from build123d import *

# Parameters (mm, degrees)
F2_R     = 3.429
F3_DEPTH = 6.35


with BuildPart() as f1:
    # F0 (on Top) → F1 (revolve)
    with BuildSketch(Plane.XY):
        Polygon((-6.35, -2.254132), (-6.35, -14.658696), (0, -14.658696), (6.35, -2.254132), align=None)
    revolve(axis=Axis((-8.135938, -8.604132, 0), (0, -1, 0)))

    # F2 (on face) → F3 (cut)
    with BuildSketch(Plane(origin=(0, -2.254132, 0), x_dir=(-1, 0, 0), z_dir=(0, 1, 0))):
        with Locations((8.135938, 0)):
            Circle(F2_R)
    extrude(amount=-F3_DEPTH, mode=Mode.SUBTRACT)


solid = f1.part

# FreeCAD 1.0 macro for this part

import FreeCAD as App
import Part
import Sketcher
from FreeCAD import Vector
Q = App.Units.Quantity


def add_polygon(sketch, points):
    """Adds a closed chain of lines whose ends are joined by coincident constraints."""
    first, n = sketch.GeometryCount, len(points)
    for a, b in zip(points, points[1:] + points[:1]):
        sketch.addGeometry(Part.LineSegment(App.Vector(*a, 0), App.Vector(*b, 0)), False)
    for i in range(n):
        sketch.addConstraint(Sketcher.Constraint("Coincident", first + i, 2, first + (i + 1) % n, 1))

doc = App.newDocument("Part")
params = doc.addObject("Spreadsheet::Sheet", "Params")
for row, (alias, value) in enumerate([
    ("sketch1_width", "0.5 in"),
    ("sketch1_width2", "0.25 in"),
    ("revolution_angle", "360 deg"),
    ("sketch2_diameter", "0.27 in"),
    ("pocket1_length", "0.25 in"),
], start=1):
    params.set(f"A{row}", alias)
    params.set(f"B{row}", "=" + value)
    params.setAlias(f"B{row}", alias)

body = doc.addObject("PartDesign::Body", "Body")

# Sketch on XY plane
sketch1 = body.newObject("Sketcher::SketchObject", "Sketch")
sketch1.AttachmentSupport = (doc.getObject("XY_Plane"), [""])
sketch1.MapMode = "FlatFace"
add_polygon(sketch1, [(-6.35, -2.254132), (-6.35, -14.658696), (0, -14.658696), (6.35, -2.254132)])  # lines 0-3
sketch1.addGeometry(Part.LineSegment(Vector(-8.135938, -2.254132, 0), Vector(-8.135938, -14.658696, 0)), True)  # axis
sketch1.addConstraint([
    Sketcher.Constraint("Vertical", 0),
    Sketcher.Constraint("Horizontal", 1),
    Sketcher.Constraint("Horizontal", 3),
    Sketcher.Constraint("Vertical", 4),
    Sketcher.Constraint("PointOnObject", 1, 2, -2),
    Sketcher.Constraint("Horizontal", 3, 2, 4, 1),
    Sketcher.Constraint("Horizontal", 1, 2, 4, 2),
    Sketcher.Constraint("DistanceX", 3, 2, 3, 1, Q("0.5 in")),
    Sketcher.Constraint("DistanceX", 1, 1, 1, 2, Q("0.25 in")),
    Sketcher.Constraint("DistanceY", 0, 2, 0, 1, 12.404564),
    Sketcher.Constraint("DistanceY", 2, 2, -1, 1, 2.254132),
    Sketcher.Constraint("DistanceX", 4, 1, -1, 1, 8.135938),
])
sketch1.setExpression("Constraints[11]", "Params.sketch1_width")
sketch1.setExpression("Constraints[12]", "Params.sketch1_width2")
revolution = body.newObject("PartDesign::Revolution", "Revolution")
revolution.Profile = sketch1
revolution.ReferenceAxis = (sketch1, ["Axis0"])
revolution.setExpression("Angle", "Params.revolution_angle")

# Sketch on XZ plane
sketch2 = body.newObject("Sketcher::SketchObject", "Sketch001")
sketch2.AttachmentSupport = (doc.getObject("XZ_Plane"), [""])
sketch2.MapMode = "FlatFace"
sketch2.AttachmentOffset = App.Placement(Vector(0, 0, 2.254132), App.Rotation())
sketch2.addGeometry(Part.Circle(Vector(-8.135938, 0, 0), Vector(0, 0, 1), 3.429), False)
sketch2.addConstraint([
    Sketcher.Constraint("PointOnObject", 0, 3, -1),
    Sketcher.Constraint("Diameter", 0, Q("0.27 in")),
    Sketcher.Constraint("DistanceX", 0, 3, -1, 1, 8.135938),
])
sketch2.setExpression("Constraints[1]", "Params.sketch2_diameter")
pocket1 = body.newObject("PartDesign::Pocket", "Pocket")
pocket1.Profile = sketch2
pocket1.setExpression("Length", "Params.pocket1_length")
pocket1.Reversed = True

doc.recompute()
